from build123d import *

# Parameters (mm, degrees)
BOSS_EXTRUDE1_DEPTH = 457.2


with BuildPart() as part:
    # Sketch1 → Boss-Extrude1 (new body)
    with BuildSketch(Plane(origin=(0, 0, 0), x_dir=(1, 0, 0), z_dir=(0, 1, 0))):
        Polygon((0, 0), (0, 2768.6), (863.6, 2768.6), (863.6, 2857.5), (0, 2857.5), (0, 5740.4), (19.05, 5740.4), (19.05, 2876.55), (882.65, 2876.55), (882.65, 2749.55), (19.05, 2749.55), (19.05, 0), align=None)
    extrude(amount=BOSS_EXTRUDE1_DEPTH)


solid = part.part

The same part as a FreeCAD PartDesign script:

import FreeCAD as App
import Part
import Sketcher
from FreeCAD import Vector
Q = App.Units.Quantity


def add_polygon(sketch, points):
    """Adds a closed chain of lines whose ends are joined by coincident constraints."""
    first, n = sketch.GeometryCount, len(points)
    for a, b in zip(points, points[1:] + points[:1]):
        sketch.addGeometry(Part.LineSegment(App.Vector(*a, 0), App.Vector(*b, 0)), False)
    for i in range(n):
        sketch.addConstraint(Sketcher.Constraint("Coincident", first + i, 2, first + (i + 1) % n, 1))

doc = App.newDocument("Part")
params = doc.addObject("Spreadsheet::Sheet", "Params")
for row, (alias, value) in enumerate([
    ("sketch1_width", "34 in"),
    ("sketch1_height", "109 in"),
    ("sketch1_height2", "5 in"),
    ("sketch1_height3", "113.5 in"),
    ("sketch1_height4", "3.5 in"),
    ("pad1_length", "18 in"),
], start=1):
    params.set(f"A{row}", alias)
    params.set(f"B{row}", "=" + value)
    params.setAlias(f"B{row}", alias)

body = doc.addObject("PartDesign::Body", "Body")

# Sketch on XZ plane
sketch1 = body.newObject("Sketcher::SketchObject", "Sketch")
sketch1.AttachmentSupport = (doc.getObject("XZ_Plane"), [""])
sketch1.MapMode = "FlatFace"
add_polygon(sketch1, [(0, -2769), (0, 0), (19, 0), (19, -2750), (883, -2750), (883, -2877), (19, -2877), (19, -5740), (0, -5740), (0, -2858), (864, -2858), (864, -2769)])  # lines 0-11
sketch1.addConstraint([
    Sketcher.Constraint("Vertical", 0),
    Sketcher.Constraint("Horizontal", 1),
    Sketcher.Constraint("Vertical", 2),
    Sketcher.Constraint("Horizontal", 3),
    Sketcher.Constraint("Vertical", 4),
    Sketcher.Constraint("Horizontal", 5),
    Sketcher.Constraint("Vertical", 6),
    Sketcher.Constraint("Horizontal", 7),
    Sketcher.Constraint("Vertical", 8),
    Sketcher.Constraint("Horizontal", 9),
    Sketcher.Constraint("Vertical", 10),
    Sketcher.Constraint("Horizontal", 11),
    Sketcher.Constraint("Coincident", 0, 2, -1, 1),
    Sketcher.Constraint("PointOnObject", 7, 2, -2),
    Sketcher.Constraint("Vertical", 2, 2, 5, 2),
    Sketcher.Constraint("Equal", 5, 9),
    Sketcher.Constraint("DistanceX", 3, 1, 3, 2, Q("34 in")),
    Sketcher.Constraint("DistanceY", 0, 1, 0, 2, Q("109 in")),
    Sketcher.Constraint("DistanceY", 4, 2, 4, 1, Q("5 in")),
    Sketcher.Constraint("DistanceY", 8, 1, 8, 2, Q("113.5 in")),
    Sketcher.Constraint("DistanceY", 10, 1, 10, 2, Q("3.5 in")),
    Sketcher.Constraint("DistanceX", 1, 1, 1, 2, Q("0.75 in")),
    Sketcher.Constraint("DistanceY", 2, 2, 2, 1, Q("108.25 in")),
])
sketch1.setExpression("Constraints[28]", "Params.sketch1_width")
sketch1.setExpression("Constraints[29]", "Params.sketch1_height")
sketch1.setExpression("Constraints[30]", "Params.sketch1_height2")
sketch1.setExpression("Constraints[31]", "Params.sketch1_height3")
sketch1.setExpression("Constraints[32]", "Params.sketch1_height4")
pad1 = body.newObject("PartDesign::Pad", "Pad")
pad1.Profile = sketch1
pad1.setExpression("Length", "Params.pad1_length")
pad1.Reversed = True

doc.recompute()
